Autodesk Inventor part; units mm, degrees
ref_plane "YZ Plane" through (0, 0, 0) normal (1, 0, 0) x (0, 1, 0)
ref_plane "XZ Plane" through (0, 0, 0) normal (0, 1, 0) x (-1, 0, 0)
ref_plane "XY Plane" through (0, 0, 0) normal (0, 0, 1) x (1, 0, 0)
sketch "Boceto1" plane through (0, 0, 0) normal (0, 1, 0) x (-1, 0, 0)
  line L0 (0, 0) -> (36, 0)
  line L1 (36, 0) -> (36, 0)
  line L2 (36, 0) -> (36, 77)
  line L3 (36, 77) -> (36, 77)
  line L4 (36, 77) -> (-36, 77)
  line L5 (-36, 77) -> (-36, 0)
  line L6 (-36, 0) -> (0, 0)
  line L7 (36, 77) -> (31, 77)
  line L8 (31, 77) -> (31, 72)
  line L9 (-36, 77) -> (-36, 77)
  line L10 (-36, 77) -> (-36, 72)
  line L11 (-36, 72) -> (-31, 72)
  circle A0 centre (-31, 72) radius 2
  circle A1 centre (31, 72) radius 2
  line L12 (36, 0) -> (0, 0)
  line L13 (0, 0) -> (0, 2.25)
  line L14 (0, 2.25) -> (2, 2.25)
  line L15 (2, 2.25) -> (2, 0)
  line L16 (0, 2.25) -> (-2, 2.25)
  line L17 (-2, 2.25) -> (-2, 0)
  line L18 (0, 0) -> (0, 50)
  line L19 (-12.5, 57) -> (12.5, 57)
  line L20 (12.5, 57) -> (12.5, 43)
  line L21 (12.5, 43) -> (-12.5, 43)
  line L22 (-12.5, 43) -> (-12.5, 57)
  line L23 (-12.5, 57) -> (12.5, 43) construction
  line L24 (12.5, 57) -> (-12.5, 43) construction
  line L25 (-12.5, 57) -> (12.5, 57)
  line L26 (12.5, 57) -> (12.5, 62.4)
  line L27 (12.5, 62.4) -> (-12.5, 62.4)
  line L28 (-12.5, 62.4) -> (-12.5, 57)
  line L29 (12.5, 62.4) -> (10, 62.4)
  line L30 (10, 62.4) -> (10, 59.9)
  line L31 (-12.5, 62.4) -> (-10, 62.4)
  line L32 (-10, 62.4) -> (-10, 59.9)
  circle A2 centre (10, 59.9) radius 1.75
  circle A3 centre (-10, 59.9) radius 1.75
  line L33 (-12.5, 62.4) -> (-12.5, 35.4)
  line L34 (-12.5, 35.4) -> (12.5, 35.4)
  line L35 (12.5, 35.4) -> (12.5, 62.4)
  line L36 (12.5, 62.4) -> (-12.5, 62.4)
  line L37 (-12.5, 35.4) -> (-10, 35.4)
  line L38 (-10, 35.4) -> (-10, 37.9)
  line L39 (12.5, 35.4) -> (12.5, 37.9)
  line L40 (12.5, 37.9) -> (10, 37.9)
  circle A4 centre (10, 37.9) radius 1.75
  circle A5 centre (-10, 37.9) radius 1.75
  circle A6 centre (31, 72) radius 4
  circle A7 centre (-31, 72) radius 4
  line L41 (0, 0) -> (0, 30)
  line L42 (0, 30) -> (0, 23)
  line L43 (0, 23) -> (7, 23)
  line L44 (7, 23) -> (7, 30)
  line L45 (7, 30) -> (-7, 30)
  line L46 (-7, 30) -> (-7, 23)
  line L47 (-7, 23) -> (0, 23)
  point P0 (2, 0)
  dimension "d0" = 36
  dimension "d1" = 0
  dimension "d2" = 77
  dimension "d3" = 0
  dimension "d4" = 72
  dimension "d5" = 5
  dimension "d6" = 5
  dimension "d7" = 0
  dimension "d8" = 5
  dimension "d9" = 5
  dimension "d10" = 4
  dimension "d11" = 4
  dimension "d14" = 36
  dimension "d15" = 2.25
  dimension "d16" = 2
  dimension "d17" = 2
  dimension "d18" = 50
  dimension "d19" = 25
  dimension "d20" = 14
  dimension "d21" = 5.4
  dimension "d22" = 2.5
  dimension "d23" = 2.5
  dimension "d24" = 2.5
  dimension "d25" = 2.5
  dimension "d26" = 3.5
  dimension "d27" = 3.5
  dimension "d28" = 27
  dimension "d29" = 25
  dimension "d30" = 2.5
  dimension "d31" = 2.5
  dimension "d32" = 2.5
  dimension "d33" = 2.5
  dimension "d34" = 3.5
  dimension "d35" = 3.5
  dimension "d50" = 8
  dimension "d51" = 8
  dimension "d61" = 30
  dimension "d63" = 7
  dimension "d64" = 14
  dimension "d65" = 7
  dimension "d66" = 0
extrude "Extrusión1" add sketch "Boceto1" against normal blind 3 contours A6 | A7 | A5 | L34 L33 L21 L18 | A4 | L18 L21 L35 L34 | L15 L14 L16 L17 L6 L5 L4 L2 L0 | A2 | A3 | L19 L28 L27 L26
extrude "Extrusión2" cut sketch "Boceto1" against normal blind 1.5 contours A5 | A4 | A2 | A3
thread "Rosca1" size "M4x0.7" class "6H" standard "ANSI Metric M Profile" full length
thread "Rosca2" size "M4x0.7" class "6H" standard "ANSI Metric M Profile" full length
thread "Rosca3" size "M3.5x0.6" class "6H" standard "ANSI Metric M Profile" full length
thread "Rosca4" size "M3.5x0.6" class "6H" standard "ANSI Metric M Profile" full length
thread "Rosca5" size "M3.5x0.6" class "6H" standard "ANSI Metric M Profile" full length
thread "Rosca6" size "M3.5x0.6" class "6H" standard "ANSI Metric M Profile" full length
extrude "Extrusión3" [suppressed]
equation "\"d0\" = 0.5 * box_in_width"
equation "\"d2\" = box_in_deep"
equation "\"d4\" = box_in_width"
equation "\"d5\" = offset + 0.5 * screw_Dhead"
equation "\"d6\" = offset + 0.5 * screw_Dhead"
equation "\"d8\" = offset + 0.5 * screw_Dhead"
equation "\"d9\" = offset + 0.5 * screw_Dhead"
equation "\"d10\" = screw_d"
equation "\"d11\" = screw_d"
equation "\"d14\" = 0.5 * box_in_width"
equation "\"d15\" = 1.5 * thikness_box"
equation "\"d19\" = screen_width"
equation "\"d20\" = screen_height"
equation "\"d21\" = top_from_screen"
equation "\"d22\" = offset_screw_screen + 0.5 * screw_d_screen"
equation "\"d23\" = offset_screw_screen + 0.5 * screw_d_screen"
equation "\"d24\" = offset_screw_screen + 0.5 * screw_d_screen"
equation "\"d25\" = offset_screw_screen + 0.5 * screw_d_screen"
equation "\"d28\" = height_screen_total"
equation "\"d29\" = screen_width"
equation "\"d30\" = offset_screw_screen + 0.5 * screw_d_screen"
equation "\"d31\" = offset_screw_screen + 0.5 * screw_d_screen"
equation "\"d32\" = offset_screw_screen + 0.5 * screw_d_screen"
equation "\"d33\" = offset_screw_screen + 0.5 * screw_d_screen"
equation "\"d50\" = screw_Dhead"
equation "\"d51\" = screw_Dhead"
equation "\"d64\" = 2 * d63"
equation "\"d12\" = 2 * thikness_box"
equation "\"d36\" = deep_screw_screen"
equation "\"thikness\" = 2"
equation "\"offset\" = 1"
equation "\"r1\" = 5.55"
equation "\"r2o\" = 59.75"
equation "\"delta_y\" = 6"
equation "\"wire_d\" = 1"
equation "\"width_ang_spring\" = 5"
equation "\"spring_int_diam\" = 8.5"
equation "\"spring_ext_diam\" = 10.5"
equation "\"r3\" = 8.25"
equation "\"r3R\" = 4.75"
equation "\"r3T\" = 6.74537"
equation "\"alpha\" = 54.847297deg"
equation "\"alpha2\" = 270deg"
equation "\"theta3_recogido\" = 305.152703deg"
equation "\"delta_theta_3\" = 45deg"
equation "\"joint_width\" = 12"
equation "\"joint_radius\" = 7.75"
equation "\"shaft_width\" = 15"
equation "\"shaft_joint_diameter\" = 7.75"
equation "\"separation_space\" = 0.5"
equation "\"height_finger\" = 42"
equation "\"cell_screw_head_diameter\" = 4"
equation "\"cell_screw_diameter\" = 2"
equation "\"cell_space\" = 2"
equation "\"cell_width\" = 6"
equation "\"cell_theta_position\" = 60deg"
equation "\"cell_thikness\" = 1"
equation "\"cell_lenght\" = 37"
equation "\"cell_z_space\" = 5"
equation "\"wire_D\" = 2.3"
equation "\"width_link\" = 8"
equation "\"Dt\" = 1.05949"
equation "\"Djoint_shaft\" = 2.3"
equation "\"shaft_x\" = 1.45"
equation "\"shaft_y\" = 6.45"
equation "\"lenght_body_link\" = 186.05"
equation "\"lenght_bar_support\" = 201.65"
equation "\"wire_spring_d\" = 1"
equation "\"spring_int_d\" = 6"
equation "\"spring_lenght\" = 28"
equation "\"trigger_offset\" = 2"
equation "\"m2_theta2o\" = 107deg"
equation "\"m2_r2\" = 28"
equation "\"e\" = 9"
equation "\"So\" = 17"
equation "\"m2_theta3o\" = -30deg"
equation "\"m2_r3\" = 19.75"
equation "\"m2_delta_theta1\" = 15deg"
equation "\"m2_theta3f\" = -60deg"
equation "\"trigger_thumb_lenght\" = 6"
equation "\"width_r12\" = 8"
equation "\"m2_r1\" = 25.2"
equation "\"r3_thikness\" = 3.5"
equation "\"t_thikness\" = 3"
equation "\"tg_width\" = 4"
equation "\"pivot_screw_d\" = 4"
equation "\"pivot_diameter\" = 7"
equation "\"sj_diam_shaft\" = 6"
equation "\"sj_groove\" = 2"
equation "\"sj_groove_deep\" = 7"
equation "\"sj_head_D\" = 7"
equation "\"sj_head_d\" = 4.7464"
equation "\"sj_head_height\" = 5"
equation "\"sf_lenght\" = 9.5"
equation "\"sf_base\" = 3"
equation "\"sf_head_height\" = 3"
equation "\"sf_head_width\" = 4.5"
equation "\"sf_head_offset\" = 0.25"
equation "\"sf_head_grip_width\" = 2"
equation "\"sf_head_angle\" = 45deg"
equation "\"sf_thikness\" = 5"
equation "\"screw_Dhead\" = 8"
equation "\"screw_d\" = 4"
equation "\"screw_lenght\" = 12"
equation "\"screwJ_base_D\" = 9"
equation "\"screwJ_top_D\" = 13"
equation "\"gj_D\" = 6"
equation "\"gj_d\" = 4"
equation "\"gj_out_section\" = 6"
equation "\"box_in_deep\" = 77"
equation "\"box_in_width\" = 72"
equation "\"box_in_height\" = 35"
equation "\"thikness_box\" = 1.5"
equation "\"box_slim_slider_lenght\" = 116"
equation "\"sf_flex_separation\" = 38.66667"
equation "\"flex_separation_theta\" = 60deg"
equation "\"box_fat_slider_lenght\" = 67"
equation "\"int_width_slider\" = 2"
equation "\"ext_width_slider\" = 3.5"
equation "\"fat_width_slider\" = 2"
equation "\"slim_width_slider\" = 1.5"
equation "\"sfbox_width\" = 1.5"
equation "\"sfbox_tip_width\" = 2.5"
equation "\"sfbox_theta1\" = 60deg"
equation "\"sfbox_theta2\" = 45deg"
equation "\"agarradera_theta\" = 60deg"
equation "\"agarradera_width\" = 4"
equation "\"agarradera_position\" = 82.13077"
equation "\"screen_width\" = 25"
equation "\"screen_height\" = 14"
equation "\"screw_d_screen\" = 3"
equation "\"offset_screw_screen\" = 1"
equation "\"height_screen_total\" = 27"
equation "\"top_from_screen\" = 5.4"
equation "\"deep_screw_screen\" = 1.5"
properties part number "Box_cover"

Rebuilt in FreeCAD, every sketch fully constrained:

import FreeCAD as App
import Part
import Sketcher

V = App.Vector


def add_polygon(sketch, points):
    """Adds a closed chain of lines whose ends are joined by coincident constraints."""
    first, n = sketch.GeometryCount, len(points)
    for a, b in zip(points, points[1:] + points[:1]):
        sketch.addGeometry(Part.LineSegment(App.Vector(*a, 0), App.Vector(*b, 0)), False)
    for i in range(n):
        sketch.addConstraint(Sketcher.Constraint("Coincident", first + i, 2, first + (i + 1) % n, 1))

doc = App.newDocument("Part")
body = doc.addObject("PartDesign::Body", "Body")

# Sketch on XZ plane
sketch1 = doc.addObject("Sketcher::SketchObject", "Sketch")
body.addObject(sketch1)
sketch1.AttachmentSupport = (doc.XZ_Plane, [""])
sketch1.MapMode = "FlatFace"
add_polygon(sketch1, [(-2, 2.25), (-2, 0), (-36, 0), (-36, 77), (-31, 77), (36, 77), (36, 72), (36, 0), (2, 0), (2, 2.25), (0, 2.25)])  # lines 0-10
sketch1.addGeometry(Part.Circle(V(-31, 72, 0), V(0, 0, 1), 2), False)  # 11
add_polygon(sketch1, [(-7, 23), (0, 23), (7, 23), (7, 30), (0, 30), (-7, 30)])  # lines 12-17
add_polygon(sketch1, [(-12.5, 57), (-12.5, 43), (12.5, 43), (12.5, 57)])  # lines 18-21
sketch1.addGeometry(Part.Circle(V(31, 72, 0), V(0, 0, 1), 2), False)  # 22
sketch1.addConstraint(Sketcher.Constraint("Vertical", 0))
sketch1.addConstraint(Sketcher.Constraint("Horizontal", 1))
sketch1.addConstraint(Sketcher.Constraint("Vertical", 2))
sketch1.addConstraint(Sketcher.Constraint("Horizontal", 3))
sketch1.addConstraint(Sketcher.Constraint("Horizontal", 4))
sketch1.addConstraint(Sketcher.Constraint("Vertical", 5))
sketch1.addConstraint(Sketcher.Constraint("Vertical", 6))
sketch1.addConstraint(Sketcher.Constraint("Horizontal", 7))
sketch1.addConstraint(Sketcher.Constraint("Vertical", 8))
sketch1.addConstraint(Sketcher.Constraint("Horizontal", 9))
sketch1.addConstraint(Sketcher.Constraint("Horizontal", 10))
sketch1.addConstraint(Sketcher.Constraint("Horizontal", 12))
sketch1.addConstraint(Sketcher.Constraint("Horizontal", 13))
sketch1.addConstraint(Sketcher.Constraint("Vertical", 14))
sketch1.addConstraint(Sketcher.Constraint("Horizontal", 15))
sketch1.addConstraint(Sketcher.Constraint("Horizontal", 16))
sketch1.addConstraint(Sketcher.Constraint("Vertical", 17))
sketch1.addConstraint(Sketcher.Constraint("Vertical", 18))
sketch1.addConstraint(Sketcher.Constraint("Horizontal", 19))
sketch1.addConstraint(Sketcher.Constraint("Vertical", 20))
sketch1.addConstraint(Sketcher.Constraint("Horizontal", 21))
sketch1.addConstraint(Sketcher.Constraint("Equal", 11, 22))
sketch1.addConstraint(Sketcher.Constraint("Symmetric", 1, 2, 6, 2, -1, 1))
sketch1.addConstraint(Sketcher.Constraint("Symmetric", 11, 3, 22, 3, -2))
sketch1.addConstraint(Sketcher.Constraint("Symmetric", 0, 2, 7, 2, -2))
sketch1.addConstraint(Sketcher.Constraint("PointOnObject", 9, 2, -2))
sketch1.addConstraint(Sketcher.Constraint("PointOnObject", 12, 2, -2))
sketch1.addConstraint(Sketcher.Constraint("PointOnObject", 15, 2, -2))
sketch1.addConstraint(Sketcher.Constraint("Horizontal", 22, 3, 5, 2))
sketch1.addConstraint(Sketcher.Constraint("Vertical", 11, 3, 3, 2))
sketch1.addConstraint(Sketcher.Constraint("Equal", 12, 13))
sketch1.addConstraint(Sketcher.Constraint("Equal", 3, 5))
sketch1.addConstraint(Sketcher.Constraint("Equal", 16, 14))
sketch1.addConstraint(Sketcher.Constraint("Diameter", 11, 4.0))
sketch1.addConstraint(Sketcher.Constraint("DistanceX", 3, 1, 3, 2, 5.0))
sketch1.addConstraint(Sketcher.Constraint("DistanceX", 9, 2, 9, 1, 2.0))
sketch1.addConstraint(Sketcher.Constraint("DistanceX", 12, 1, 12, 2, 7.0))
sketch1.addConstraint(Sketcher.Constraint("DistanceX", 19, 1, 19, 2, 25.0))
sketch1.addConstraint(Sketcher.Constraint("DistanceY", 2, 1, 2, 2, 77.0))
sketch1.addConstraint(Sketcher.Constraint("DistanceY", 18, 2, 18, 1, 14.0))
sketch1.addConstraint(Sketcher.Constraint("DistanceX", 1, 2, -1, 1, 36.0))
sketch1.addConstraint(Sketcher.Constraint("DistanceY", -1, 1, 14, 2, 30.0))
sketch1.addConstraint(Sketcher.Constraint("DistanceY", 14, 2, 20, 2, 27.0))
sketch1.addConstraint(Sketcher.Constraint("DistanceY", 0, 2, 0, 1, 2.25))
sketch1.addConstraint(Sketcher.Constraint("DistanceX", 18, 2, -1, 1, 12.5))
pad1 = doc.addObject("PartDesign::Pad", "Pad")
body.addObject(pad1)
pad1.Profile = sketch1
pad1.Length = 3

# Sketch on XZ plane
sketch2 = doc.addObject("Sketcher::SketchObject", "Sketch001")
body.addObject(sketch2)
sketch2.AttachmentSupport = (doc.XZ_Plane, [""])
sketch2.MapMode = "FlatFace"
sketch2.addGeometry(Part.Circle(V(10, 37.9, 0), V(0, 0, 1), 1.75), False)
sketch2.addGeometry(Part.Circle(V(-10, 37.9, 0), V(0, 0, 1), 1.75), False)
sketch2.addGeometry(Part.Circle(V(-10, 59.9, 0), V(0, 0, 1), 1.75), False)
sketch2.addGeometry(Part.Circle(V(10, 59.9, 0), V(0, 0, 1), 1.75), False)
sketch2.addConstraint(Sketcher.Constraint("Equal", 0, 1))
sketch2.addConstraint(Sketcher.Constraint("Equal", 1, 2))
sketch2.addConstraint(Sketcher.Constraint("Equal", 2, 3))
sketch2.addConstraint(Sketcher.Constraint("Symmetric", 0, 3, 1, 3, -2))
sketch2.addConstraint(Sketcher.Constraint("Symmetric", 2, 3, 3, 3, -2))
sketch2.addConstraint(Sketcher.Constraint("Vertical", 1, 3, 2, 3))
sketch2.addConstraint(Sketcher.Constraint("Diameter", 0, 3.5))
sketch2.addConstraint(Sketcher.Constraint("DistanceX", -1, 1, 0, 3, 10.0))
sketch2.addConstraint(Sketcher.Constraint("DistanceY", 1, 3, 2, 3, 22.0))
sketch2.addConstraint(Sketcher.Constraint("DistanceY", -1, 1, 0, 3, 37.9))
pocket1 = doc.addObject("PartDesign::Pocket", "Pocket")
body.addObject(pocket1)
pocket1.Profile = sketch2
pocket1.Length = 1.5
pocket1.Reversed = True

doc.recompute()
